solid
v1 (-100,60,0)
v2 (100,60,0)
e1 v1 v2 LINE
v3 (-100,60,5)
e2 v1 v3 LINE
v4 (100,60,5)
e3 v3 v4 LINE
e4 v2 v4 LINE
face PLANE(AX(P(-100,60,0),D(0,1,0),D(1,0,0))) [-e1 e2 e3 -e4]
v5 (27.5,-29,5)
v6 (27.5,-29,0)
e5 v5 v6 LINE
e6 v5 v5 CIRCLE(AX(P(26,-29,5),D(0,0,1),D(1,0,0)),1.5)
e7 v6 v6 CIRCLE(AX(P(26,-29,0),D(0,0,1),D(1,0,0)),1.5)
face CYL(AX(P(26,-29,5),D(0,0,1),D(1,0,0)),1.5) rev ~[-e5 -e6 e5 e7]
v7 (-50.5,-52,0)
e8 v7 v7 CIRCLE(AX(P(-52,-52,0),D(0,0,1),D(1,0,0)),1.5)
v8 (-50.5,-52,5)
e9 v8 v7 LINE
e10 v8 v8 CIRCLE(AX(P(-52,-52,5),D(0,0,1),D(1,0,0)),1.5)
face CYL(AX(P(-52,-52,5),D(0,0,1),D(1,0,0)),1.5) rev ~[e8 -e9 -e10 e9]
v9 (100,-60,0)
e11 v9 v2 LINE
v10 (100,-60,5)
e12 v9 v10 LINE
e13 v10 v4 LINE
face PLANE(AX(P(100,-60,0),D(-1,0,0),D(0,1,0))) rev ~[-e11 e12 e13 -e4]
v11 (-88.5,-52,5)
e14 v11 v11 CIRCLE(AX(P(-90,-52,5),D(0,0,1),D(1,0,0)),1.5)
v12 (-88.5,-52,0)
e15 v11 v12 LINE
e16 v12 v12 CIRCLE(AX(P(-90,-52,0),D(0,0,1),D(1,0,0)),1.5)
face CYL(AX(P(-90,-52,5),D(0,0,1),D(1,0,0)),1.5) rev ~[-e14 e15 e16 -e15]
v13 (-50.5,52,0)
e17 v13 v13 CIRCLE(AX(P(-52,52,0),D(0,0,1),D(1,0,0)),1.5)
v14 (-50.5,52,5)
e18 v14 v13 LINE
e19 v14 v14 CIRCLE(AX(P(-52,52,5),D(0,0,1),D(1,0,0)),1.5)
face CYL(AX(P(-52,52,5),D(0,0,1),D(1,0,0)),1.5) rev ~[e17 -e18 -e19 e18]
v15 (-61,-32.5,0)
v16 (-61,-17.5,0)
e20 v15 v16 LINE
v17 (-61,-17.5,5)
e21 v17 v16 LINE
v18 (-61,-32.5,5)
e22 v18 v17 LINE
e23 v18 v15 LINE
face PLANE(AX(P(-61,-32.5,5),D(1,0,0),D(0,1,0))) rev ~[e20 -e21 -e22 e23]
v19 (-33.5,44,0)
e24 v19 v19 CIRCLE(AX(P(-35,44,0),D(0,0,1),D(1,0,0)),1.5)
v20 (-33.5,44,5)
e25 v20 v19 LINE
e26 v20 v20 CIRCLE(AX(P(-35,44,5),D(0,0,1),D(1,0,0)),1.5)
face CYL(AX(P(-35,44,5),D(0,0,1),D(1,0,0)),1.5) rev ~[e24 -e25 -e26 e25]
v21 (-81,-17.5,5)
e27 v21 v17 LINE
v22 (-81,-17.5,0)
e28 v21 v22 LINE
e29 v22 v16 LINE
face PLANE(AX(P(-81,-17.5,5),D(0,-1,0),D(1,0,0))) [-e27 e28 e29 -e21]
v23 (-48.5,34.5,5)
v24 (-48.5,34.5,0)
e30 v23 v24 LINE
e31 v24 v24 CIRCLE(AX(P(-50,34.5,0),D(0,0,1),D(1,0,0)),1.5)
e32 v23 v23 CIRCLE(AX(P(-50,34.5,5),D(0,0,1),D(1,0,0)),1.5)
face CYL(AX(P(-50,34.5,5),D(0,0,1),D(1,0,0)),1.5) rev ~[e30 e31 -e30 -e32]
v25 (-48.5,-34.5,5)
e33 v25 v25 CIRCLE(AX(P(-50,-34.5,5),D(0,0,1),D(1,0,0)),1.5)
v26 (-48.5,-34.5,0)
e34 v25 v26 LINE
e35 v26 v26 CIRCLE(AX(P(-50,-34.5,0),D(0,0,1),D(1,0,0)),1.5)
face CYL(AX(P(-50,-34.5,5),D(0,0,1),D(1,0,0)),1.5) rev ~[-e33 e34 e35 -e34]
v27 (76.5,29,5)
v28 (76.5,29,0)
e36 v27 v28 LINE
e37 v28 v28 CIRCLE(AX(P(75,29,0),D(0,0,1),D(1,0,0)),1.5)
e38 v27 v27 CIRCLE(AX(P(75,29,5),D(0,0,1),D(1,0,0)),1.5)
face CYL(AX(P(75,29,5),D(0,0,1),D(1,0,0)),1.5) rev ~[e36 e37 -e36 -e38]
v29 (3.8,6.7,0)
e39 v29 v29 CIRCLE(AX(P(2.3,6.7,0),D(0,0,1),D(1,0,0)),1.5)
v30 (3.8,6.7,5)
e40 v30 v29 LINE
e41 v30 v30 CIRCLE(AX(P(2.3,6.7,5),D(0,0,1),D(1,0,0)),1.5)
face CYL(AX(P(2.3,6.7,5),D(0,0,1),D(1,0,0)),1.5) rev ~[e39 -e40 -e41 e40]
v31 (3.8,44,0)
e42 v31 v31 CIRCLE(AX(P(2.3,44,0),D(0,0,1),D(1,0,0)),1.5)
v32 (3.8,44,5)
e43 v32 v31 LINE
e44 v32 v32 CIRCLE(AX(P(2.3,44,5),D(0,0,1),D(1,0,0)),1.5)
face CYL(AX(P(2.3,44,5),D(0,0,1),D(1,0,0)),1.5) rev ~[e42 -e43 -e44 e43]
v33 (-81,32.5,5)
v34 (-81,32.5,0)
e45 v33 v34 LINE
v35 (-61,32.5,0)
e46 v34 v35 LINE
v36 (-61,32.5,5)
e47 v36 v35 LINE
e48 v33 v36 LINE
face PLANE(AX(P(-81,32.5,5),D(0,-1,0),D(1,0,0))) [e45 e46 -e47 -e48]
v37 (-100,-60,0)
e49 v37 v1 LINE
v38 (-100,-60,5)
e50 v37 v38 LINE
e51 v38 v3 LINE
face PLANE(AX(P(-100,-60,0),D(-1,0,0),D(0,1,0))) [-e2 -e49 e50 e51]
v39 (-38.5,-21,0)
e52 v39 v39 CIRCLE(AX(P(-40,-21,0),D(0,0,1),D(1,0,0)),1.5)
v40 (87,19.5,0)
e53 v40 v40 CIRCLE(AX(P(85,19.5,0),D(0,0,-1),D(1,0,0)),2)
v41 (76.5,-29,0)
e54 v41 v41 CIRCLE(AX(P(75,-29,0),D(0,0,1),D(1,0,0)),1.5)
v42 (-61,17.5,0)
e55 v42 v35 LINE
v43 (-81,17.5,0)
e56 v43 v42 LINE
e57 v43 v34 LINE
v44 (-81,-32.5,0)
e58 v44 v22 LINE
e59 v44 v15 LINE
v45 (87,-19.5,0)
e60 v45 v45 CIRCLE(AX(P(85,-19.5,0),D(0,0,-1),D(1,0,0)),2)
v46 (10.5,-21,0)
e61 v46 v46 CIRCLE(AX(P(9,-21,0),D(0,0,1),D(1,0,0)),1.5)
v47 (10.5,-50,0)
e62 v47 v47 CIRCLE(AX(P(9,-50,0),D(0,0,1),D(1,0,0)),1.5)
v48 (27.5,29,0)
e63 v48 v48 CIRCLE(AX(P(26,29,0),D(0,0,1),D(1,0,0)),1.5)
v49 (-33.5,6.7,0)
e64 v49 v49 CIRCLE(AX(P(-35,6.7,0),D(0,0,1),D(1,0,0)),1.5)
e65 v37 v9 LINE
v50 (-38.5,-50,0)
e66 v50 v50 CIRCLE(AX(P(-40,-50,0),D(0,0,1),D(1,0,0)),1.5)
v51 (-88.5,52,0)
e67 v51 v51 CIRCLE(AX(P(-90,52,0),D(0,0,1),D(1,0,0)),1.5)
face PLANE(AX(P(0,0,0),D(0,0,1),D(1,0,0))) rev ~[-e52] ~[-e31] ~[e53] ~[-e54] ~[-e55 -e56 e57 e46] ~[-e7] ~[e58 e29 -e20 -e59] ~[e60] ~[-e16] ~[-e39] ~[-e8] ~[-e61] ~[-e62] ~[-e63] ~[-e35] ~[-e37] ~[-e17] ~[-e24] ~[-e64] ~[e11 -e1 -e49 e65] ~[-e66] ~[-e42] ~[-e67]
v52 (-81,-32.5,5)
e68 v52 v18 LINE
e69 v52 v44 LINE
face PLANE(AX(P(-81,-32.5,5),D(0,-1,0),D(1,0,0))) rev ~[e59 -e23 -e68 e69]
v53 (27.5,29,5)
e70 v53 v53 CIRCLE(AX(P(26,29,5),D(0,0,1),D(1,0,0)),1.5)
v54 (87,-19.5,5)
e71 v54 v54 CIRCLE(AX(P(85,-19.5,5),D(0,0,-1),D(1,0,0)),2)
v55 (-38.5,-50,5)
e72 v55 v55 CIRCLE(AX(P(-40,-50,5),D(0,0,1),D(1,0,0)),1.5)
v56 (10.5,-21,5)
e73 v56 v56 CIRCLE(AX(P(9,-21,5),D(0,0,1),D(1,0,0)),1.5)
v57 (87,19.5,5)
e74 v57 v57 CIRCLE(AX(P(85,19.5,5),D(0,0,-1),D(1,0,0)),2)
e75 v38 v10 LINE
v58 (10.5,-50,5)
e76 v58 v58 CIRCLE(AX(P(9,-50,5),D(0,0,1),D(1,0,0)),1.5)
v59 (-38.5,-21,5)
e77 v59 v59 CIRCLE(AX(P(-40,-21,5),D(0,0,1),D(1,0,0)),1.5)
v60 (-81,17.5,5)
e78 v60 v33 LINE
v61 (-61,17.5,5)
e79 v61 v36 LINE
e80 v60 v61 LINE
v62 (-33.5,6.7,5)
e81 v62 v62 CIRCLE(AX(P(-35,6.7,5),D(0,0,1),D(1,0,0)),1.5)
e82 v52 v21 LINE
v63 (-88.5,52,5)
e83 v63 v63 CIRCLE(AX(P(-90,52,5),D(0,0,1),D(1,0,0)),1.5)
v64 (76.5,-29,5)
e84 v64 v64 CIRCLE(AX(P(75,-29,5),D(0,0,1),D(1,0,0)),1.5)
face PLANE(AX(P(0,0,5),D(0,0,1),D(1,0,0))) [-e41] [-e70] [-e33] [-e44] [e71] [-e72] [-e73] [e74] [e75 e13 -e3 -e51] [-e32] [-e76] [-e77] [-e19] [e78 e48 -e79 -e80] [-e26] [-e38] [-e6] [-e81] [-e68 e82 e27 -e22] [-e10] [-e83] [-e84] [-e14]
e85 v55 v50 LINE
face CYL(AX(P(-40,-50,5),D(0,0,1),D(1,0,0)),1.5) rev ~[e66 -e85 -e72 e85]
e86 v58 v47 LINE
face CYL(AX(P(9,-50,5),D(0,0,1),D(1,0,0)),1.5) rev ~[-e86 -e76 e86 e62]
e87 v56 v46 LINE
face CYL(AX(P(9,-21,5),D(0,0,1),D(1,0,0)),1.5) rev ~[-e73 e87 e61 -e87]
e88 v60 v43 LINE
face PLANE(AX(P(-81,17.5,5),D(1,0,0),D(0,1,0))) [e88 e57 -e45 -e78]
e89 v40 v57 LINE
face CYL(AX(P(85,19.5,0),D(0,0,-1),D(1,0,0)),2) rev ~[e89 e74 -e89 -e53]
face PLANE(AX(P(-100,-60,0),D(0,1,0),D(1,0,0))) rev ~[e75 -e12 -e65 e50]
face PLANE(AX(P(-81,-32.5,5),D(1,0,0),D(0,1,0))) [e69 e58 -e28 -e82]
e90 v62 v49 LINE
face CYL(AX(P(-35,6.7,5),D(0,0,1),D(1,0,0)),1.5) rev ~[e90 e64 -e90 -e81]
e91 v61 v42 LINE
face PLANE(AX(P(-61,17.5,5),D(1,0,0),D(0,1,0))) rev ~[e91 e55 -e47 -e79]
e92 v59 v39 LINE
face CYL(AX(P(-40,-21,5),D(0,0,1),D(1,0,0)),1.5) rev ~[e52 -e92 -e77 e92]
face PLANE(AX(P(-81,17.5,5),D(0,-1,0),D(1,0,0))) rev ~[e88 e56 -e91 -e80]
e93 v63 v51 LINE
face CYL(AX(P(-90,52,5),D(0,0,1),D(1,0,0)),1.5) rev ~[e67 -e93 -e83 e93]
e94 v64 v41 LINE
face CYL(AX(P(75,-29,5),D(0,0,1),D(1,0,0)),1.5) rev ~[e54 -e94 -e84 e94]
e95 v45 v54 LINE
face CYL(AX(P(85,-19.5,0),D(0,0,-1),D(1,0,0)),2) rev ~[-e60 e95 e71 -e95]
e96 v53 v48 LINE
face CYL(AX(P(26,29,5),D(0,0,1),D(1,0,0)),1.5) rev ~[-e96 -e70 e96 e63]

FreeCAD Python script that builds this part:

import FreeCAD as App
import Part
import Sketcher


def add_polygon(sketch, points):
    """Adds a closed chain of lines whose ends are joined by coincident constraints."""
    first, n = sketch.GeometryCount, len(points)
    for a, b in zip(points, points[1:] + points[:1]):
        sketch.addGeometry(Part.LineSegment(App.Vector(*a, 0), App.Vector(*b, 0)), False)
    for i in range(n):
        sketch.addConstraint(Sketcher.Constraint("Coincident", first + i, 2, first + (i + 1) % n, 1))

doc = App.newDocument("Part")
params = doc.addObject("Spreadsheet::Sheet", "Params")
for row, (alias, value) in enumerate([
    ("sketch1_width", "200 mm"),
    ("sketch1_height", "120 mm"),
    ("pad1_length", "5 mm"),
    ("sketch2_diameter", "3 mm"),
    ("sketch2_width", "20 mm"),
    ("sketch2_height", "15 mm"),
    ("pocket1_length", "25 mm"),
    ("sketch3_diameter", "3 mm"),
    ("sketch4_diameter", "4 mm"),
    ("sketch5_diameter", "3 mm"),
    ("sketch6_diameter", "3 mm"),
    ("sketch7_diameter", "3 mm"),
], start=1):
    params.set(f"A{row}", alias)
    params.set(f"B{row}", "=" + value)
    params.setAlias(f"B{row}", alias)

body = doc.addObject("PartDesign::Body", "Body")

sketch1 = body.newObject("Sketcher::SketchObject", "Sketch")
sketch1.AttachmentSupport = (doc.getObject("XY_Plane"), [""])
sketch1.MapMode = "FlatFace"
add_polygon(sketch1, [(-100, 60), (-100, -60), (100, -60), (100, 60)])
sketch1.addConstraint([
    Sketcher.Constraint("Vertical", 0),
    Sketcher.Constraint("Horizontal", 1),
    Sketcher.Constraint("Vertical", 2),
    Sketcher.Constraint("Horizontal", 3),
    Sketcher.Constraint("Symmetric", 0, 2, 2, 2, -1, 1),
    Sketcher.Constraint("DistanceX", 1, 1, 1, 2, 200.0),
    Sketcher.Constraint("DistanceY", 0, 2, 0, 1, 120.0),
])
sketch1.setExpression("Constraints[9]", "Params.sketch1_width")
sketch1.setExpression("Constraints[10]", "Params.sketch1_height")
pad1 = body.newObject("PartDesign::Pad", "Pad")
pad1.Profile = sketch1
pad1.setExpression("Length", "Params.pad1_length")

sketch2 = body.newObject("Sketcher::SketchObject", "Sketch001")
sketch2.AttachmentSupport = (doc.getObject("XY_Plane"), [""])
sketch2.MapMode = "FlatFace"
sketch2.AttachmentOffset = App.Placement(App.Vector(0, 0, 5), App.Rotation())
sketch2.addGeometry(Part.Circle(App.Vector(-90, 52, 0), App.Vector(0, 0, 1), 1.5), False)
sketch2.addGeometry(Part.Circle(App.Vector(-52, 52, 0), App.Vector(0, 0, 1), 1.5), False)
sketch2.addGeometry(Part.Circle(App.Vector(-90, -52, 0), App.Vector(0, 0, 1), 1.5), False)
sketch2.addGeometry(Part.Circle(App.Vector(-52, -52, 0), App.Vector(0, 0, 1), 1.5), False)
add_polygon(sketch2, [(-81, 32.5), (-81, 17.5), (-61, 17.5), (-61, 32.5)])
add_polygon(sketch2, [(-81, -17.5), (-81, -32.5), (-61, -32.5), (-61, -17.5)])
sketch2.addConstraint([
    Sketcher.Constraint("Vertical", 4),
    Sketcher.Constraint("Horizontal", 5),
    Sketcher.Constraint("Vertical", 6),
    Sketcher.Constraint("Horizontal", 7),
    Sketcher.Constraint("Vertical", 8),
    Sketcher.Constraint("Horizontal", 9),
    Sketcher.Constraint("Vertical", 10),
    Sketcher.Constraint("Horizontal", 11),
    Sketcher.Constraint("Equal", 0, 1),
    Sketcher.Constraint("Equal", 1, 2),
    Sketcher.Constraint("Equal", 2, 3),
    Sketcher.Constraint("Symmetric", 0, 3, 2, 3, -1),
    Sketcher.Constraint("Symmetric", 1, 3, 3, 3, -1),
    Sketcher.Constraint("Symmetric", 7, 2, 8, 2, -1),
    Sketcher.Constraint("Symmetric", 5, 2, 10, 2, -1),
    Sketcher.Constraint("Horizontal", 0, 3, 1, 3),
    Sketcher.Constraint("Diameter", 0, 3.0),
    Sketcher.Constraint("DistanceX", 5, 1, 5, 2, 20.0),
    Sketcher.Constraint("DistanceY", 4, 2, 4, 1, 15.0),
    Sketcher.Constraint("DistanceX", 0, 3, -1, 1, 90.0),
    Sketcher.Constraint("DistanceY", -1, 1, 0, 3, 52.0),
    Sketcher.Constraint("DistanceX", 1, 3, -1, 1, 52.0),
    Sketcher.Constraint("DistanceX", 4, 2, -1, 1, 81.0),
    Sketcher.Constraint("DistanceY", 8, 2, 4, 2, 50.0),
])
sketch2.setExpression("Constraints[24]", "Params.sketch2_diameter")
sketch2.setExpression("Constraints[25]", "Params.sketch2_width")
sketch2.setExpression("Constraints[26]", "Params.sketch2_height")
pocket1 = body.newObject("PartDesign::Pocket", "Pocket")
pocket1.Profile = sketch2
pocket1.setExpression("Length", "Params.pocket1_length")

sketch3 = body.newObject("Sketcher::SketchObject", "Sketch002")
sketch3.AttachmentSupport = (doc.getObject("XY_Plane"), [""])
sketch3.MapMode = "FlatFace"
sketch3.AttachmentOffset = App.Placement(App.Vector(0, 0, 5), App.Rotation())
sketch3.addGeometry([
    Part.Circle(App.Vector(26, -29, 0), App.Vector(0, 0, 1), 1.5),
    Part.Circle(App.Vector(26, 29, 0), App.Vector(0, 0, 1), 1.5),
    Part.Circle(App.Vector(75, -29, 0), App.Vector(0, 0, 1), 1.5),
    Part.Circle(App.Vector(75, 29, 0), App.Vector(0, 0, 1), 1.5),
], False)
sketch3.addConstraint([
    Sketcher.Constraint("Equal", 0, 1),
    Sketcher.Constraint("Equal", 1, 2),
    Sketcher.Constraint("Equal", 2, 3),
    Sketcher.Constraint("Symmetric", 0, 3, 1, 3, -1),
    Sketcher.Constraint("Symmetric", 2, 3, 3, 3, -1),
    Sketcher.Constraint("Horizontal", 0, 3, 2, 3),
    Sketcher.Constraint("Diameter", 0, 3.0),
    Sketcher.Constraint("DistanceX", -1, 1, 0, 3, 26.0),
    Sketcher.Constraint("DistanceY", 0, 3, -1, 1, 29.0),
    Sketcher.Constraint("DistanceX", -1, 1, 2, 3, 75.0),
])
sketch3.setExpression("Constraints[6]", "Params.sketch3_diameter")
pocket2 = body.newObject("PartDesign::Pocket", "Pocket001")
pocket2.Profile = sketch3
pocket2.Type = "ThroughAll"

sketch4 = body.newObject("Sketcher::SketchObject", "Sketch003")
sketch4.AttachmentSupport = (doc.getObject("XY_Plane"), [""])
sketch4.MapMode = "FlatFace"
sketch4.addGeometry([
    Part.Circle(App.Vector(85, -19.5, 0), App.Vector(0, 0, 1), 2),
    Part.Circle(App.Vector(85, 19.5, 0), App.Vector(0, 0, 1), 2),
], False)
sketch4.addConstraint([
    Sketcher.Constraint("Equal", 0, 1),
    Sketcher.Constraint("Symmetric", 0, 3, 1, 3, -1),
    Sketcher.Constraint("Diameter", 0, 4.0),
    Sketcher.Constraint("DistanceX", -1, 1, 0, 3, 85.0),
    Sketcher.Constraint("DistanceY", 0, 3, 1, 3, 39.0),
])
sketch4.setExpression("Constraints[2]", "Params.sketch4_diameter")
pocket3 = body.newObject("PartDesign::Pocket", "Pocket002")
pocket3.Profile = sketch4
pocket3.Type = "ThroughAll"
pocket3.Reversed = True

sketch5 = body.newObject("Sketcher::SketchObject", "Sketch004")
sketch5.AttachmentSupport = (doc.getObject("XY_Plane"), [""])
sketch5.MapMode = "FlatFace"
sketch5.AttachmentOffset = App.Placement(App.Vector(0, 0, 5), App.Rotation())
sketch5.addGeometry([
    Part.Circle(App.Vector(-35, 44, 0), App.Vector(0, 0, 1), 1.5),
    Part.Circle(App.Vector(-35, 6.7, 0), App.Vector(0, 0, 1), 1.5),
    Part.Circle(App.Vector(2.3, 44, 0), App.Vector(0, 0, 1), 1.5),
    Part.Circle(App.Vector(2.3, 6.7, 0), App.Vector(0, 0, 1), 1.5),
], False)
sketch5.addConstraint([
    Sketcher.Constraint("Equal", 0, 1),
    Sketcher.Constraint("Equal", 1, 2),
    Sketcher.Constraint("Equal", 2, 3),
    Sketcher.Constraint("Horizontal", 0, 3, 2, 3),
    Sketcher.Constraint("Horizontal", 1, 3, 3, 3),
    Sketcher.Constraint("Vertical", 0, 3, 1, 3),
    Sketcher.Constraint("Vertical", 2, 3, 3, 3),
    Sketcher.Constraint("Diameter", 0, 3.0),
    Sketcher.Constraint("DistanceX", 0, 3, -1, 1, 35.0),
    Sketcher.Constraint("DistanceY", -1, 1, 0, 3, 44.0),
    Sketcher.Constraint("DistanceY", -1, 1, 1, 3, 6.7),
    Sketcher.Constraint("DistanceX", -1, 1, 2, 3, 2.3),
])
sketch5.setExpression("Constraints[7]", "Params.sketch5_diameter")
pocket4 = body.newObject("PartDesign::Pocket", "Pocket003")
pocket4.Profile = sketch5
pocket4.Type = "ThroughAll"

sketch6 = body.newObject("Sketcher::SketchObject", "Sketch005")
sketch6.AttachmentSupport = (doc.getObject("XY_Plane"), [""])
sketch6.MapMode = "FlatFace"
sketch6.AttachmentOffset = App.Placement(App.Vector(0, 0, 5), App.Rotation())
sketch6.addGeometry([
    Part.Circle(App.Vector(-40, -21, 0), App.Vector(0, 0, 1), 1.5),
    Part.Circle(App.Vector(-40, -50, 0), App.Vector(0, 0, 1), 1.5),
    Part.Circle(App.Vector(9, -21, 0), App.Vector(0, 0, 1), 1.5),
    Part.Circle(App.Vector(9, -50, 0), App.Vector(0, 0, 1), 1.5),
], False)
sketch6.addConstraint([
    Sketcher.Constraint("Equal", 0, 1),
    Sketcher.Constraint("Equal", 1, 2),
    Sketcher.Constraint("Equal", 2, 3),
    Sketcher.Constraint("Horizontal", 0, 3, 2, 3),
    Sketcher.Constraint("Horizontal", 1, 3, 3, 3),
    Sketcher.Constraint("Vertical", 0, 3, 1, 3),
    Sketcher.Constraint("Vertical", 2, 3, 3, 3),
    Sketcher.Constraint("Diameter", 0, 3.0),
    Sketcher.Constraint("DistanceX", 0, 3, -1, 1, 40.0),
    Sketcher.Constraint("DistanceY", 0, 3, -1, 1, 21.0),
    Sketcher.Constraint("DistanceY", 1, 3, -1, 1, 50.0),
    Sketcher.Constraint("DistanceX", -1, 1, 2, 3, 9.0),
])
sketch6.setExpression("Constraints[7]", "Params.sketch6_diameter")
pocket5 = body.newObject("PartDesign::Pocket", "Pocket004")
pocket5.Profile = sketch6
pocket5.Type = "ThroughAll"

sketch7 = body.newObject("Sketcher::SketchObject", "Sketch006")
sketch7.AttachmentSupport = (doc.getObject("XY_Plane"), [""])
sketch7.MapMode = "FlatFace"
sketch7.AttachmentOffset = App.Placement(App.Vector(0, 0, 5), App.Rotation())
sketch7.addGeometry([
    Part.Circle(App.Vector(-50, 34.5, 0), App.Vector(0, 0, 1), 1.5),
    Part.Circle(App.Vector(-50, -34.5, 0), App.Vector(0, 0, 1), 1.5),
], False)
sketch7.addConstraint([
    Sketcher.Constraint("Equal", 0, 1),
    Sketcher.Constraint("Symmetric", 0, 3, 1, 3, -1),
    Sketcher.Constraint("Diameter", 0, 3.0),
    Sketcher.Constraint("DistanceX", 0, 3, -1, 1, 50.0),
    Sketcher.Constraint("DistanceY", 1, 3, 0, 3, 69.0),
])
sketch7.setExpression("Constraints[2]", "Params.sketch7_diameter")
pocket6 = body.newObject("PartDesign::Pocket", "Pocket005")
pocket6.Profile = sketch7
pocket6.Type = "ThroughAll"

doc.recompute()
